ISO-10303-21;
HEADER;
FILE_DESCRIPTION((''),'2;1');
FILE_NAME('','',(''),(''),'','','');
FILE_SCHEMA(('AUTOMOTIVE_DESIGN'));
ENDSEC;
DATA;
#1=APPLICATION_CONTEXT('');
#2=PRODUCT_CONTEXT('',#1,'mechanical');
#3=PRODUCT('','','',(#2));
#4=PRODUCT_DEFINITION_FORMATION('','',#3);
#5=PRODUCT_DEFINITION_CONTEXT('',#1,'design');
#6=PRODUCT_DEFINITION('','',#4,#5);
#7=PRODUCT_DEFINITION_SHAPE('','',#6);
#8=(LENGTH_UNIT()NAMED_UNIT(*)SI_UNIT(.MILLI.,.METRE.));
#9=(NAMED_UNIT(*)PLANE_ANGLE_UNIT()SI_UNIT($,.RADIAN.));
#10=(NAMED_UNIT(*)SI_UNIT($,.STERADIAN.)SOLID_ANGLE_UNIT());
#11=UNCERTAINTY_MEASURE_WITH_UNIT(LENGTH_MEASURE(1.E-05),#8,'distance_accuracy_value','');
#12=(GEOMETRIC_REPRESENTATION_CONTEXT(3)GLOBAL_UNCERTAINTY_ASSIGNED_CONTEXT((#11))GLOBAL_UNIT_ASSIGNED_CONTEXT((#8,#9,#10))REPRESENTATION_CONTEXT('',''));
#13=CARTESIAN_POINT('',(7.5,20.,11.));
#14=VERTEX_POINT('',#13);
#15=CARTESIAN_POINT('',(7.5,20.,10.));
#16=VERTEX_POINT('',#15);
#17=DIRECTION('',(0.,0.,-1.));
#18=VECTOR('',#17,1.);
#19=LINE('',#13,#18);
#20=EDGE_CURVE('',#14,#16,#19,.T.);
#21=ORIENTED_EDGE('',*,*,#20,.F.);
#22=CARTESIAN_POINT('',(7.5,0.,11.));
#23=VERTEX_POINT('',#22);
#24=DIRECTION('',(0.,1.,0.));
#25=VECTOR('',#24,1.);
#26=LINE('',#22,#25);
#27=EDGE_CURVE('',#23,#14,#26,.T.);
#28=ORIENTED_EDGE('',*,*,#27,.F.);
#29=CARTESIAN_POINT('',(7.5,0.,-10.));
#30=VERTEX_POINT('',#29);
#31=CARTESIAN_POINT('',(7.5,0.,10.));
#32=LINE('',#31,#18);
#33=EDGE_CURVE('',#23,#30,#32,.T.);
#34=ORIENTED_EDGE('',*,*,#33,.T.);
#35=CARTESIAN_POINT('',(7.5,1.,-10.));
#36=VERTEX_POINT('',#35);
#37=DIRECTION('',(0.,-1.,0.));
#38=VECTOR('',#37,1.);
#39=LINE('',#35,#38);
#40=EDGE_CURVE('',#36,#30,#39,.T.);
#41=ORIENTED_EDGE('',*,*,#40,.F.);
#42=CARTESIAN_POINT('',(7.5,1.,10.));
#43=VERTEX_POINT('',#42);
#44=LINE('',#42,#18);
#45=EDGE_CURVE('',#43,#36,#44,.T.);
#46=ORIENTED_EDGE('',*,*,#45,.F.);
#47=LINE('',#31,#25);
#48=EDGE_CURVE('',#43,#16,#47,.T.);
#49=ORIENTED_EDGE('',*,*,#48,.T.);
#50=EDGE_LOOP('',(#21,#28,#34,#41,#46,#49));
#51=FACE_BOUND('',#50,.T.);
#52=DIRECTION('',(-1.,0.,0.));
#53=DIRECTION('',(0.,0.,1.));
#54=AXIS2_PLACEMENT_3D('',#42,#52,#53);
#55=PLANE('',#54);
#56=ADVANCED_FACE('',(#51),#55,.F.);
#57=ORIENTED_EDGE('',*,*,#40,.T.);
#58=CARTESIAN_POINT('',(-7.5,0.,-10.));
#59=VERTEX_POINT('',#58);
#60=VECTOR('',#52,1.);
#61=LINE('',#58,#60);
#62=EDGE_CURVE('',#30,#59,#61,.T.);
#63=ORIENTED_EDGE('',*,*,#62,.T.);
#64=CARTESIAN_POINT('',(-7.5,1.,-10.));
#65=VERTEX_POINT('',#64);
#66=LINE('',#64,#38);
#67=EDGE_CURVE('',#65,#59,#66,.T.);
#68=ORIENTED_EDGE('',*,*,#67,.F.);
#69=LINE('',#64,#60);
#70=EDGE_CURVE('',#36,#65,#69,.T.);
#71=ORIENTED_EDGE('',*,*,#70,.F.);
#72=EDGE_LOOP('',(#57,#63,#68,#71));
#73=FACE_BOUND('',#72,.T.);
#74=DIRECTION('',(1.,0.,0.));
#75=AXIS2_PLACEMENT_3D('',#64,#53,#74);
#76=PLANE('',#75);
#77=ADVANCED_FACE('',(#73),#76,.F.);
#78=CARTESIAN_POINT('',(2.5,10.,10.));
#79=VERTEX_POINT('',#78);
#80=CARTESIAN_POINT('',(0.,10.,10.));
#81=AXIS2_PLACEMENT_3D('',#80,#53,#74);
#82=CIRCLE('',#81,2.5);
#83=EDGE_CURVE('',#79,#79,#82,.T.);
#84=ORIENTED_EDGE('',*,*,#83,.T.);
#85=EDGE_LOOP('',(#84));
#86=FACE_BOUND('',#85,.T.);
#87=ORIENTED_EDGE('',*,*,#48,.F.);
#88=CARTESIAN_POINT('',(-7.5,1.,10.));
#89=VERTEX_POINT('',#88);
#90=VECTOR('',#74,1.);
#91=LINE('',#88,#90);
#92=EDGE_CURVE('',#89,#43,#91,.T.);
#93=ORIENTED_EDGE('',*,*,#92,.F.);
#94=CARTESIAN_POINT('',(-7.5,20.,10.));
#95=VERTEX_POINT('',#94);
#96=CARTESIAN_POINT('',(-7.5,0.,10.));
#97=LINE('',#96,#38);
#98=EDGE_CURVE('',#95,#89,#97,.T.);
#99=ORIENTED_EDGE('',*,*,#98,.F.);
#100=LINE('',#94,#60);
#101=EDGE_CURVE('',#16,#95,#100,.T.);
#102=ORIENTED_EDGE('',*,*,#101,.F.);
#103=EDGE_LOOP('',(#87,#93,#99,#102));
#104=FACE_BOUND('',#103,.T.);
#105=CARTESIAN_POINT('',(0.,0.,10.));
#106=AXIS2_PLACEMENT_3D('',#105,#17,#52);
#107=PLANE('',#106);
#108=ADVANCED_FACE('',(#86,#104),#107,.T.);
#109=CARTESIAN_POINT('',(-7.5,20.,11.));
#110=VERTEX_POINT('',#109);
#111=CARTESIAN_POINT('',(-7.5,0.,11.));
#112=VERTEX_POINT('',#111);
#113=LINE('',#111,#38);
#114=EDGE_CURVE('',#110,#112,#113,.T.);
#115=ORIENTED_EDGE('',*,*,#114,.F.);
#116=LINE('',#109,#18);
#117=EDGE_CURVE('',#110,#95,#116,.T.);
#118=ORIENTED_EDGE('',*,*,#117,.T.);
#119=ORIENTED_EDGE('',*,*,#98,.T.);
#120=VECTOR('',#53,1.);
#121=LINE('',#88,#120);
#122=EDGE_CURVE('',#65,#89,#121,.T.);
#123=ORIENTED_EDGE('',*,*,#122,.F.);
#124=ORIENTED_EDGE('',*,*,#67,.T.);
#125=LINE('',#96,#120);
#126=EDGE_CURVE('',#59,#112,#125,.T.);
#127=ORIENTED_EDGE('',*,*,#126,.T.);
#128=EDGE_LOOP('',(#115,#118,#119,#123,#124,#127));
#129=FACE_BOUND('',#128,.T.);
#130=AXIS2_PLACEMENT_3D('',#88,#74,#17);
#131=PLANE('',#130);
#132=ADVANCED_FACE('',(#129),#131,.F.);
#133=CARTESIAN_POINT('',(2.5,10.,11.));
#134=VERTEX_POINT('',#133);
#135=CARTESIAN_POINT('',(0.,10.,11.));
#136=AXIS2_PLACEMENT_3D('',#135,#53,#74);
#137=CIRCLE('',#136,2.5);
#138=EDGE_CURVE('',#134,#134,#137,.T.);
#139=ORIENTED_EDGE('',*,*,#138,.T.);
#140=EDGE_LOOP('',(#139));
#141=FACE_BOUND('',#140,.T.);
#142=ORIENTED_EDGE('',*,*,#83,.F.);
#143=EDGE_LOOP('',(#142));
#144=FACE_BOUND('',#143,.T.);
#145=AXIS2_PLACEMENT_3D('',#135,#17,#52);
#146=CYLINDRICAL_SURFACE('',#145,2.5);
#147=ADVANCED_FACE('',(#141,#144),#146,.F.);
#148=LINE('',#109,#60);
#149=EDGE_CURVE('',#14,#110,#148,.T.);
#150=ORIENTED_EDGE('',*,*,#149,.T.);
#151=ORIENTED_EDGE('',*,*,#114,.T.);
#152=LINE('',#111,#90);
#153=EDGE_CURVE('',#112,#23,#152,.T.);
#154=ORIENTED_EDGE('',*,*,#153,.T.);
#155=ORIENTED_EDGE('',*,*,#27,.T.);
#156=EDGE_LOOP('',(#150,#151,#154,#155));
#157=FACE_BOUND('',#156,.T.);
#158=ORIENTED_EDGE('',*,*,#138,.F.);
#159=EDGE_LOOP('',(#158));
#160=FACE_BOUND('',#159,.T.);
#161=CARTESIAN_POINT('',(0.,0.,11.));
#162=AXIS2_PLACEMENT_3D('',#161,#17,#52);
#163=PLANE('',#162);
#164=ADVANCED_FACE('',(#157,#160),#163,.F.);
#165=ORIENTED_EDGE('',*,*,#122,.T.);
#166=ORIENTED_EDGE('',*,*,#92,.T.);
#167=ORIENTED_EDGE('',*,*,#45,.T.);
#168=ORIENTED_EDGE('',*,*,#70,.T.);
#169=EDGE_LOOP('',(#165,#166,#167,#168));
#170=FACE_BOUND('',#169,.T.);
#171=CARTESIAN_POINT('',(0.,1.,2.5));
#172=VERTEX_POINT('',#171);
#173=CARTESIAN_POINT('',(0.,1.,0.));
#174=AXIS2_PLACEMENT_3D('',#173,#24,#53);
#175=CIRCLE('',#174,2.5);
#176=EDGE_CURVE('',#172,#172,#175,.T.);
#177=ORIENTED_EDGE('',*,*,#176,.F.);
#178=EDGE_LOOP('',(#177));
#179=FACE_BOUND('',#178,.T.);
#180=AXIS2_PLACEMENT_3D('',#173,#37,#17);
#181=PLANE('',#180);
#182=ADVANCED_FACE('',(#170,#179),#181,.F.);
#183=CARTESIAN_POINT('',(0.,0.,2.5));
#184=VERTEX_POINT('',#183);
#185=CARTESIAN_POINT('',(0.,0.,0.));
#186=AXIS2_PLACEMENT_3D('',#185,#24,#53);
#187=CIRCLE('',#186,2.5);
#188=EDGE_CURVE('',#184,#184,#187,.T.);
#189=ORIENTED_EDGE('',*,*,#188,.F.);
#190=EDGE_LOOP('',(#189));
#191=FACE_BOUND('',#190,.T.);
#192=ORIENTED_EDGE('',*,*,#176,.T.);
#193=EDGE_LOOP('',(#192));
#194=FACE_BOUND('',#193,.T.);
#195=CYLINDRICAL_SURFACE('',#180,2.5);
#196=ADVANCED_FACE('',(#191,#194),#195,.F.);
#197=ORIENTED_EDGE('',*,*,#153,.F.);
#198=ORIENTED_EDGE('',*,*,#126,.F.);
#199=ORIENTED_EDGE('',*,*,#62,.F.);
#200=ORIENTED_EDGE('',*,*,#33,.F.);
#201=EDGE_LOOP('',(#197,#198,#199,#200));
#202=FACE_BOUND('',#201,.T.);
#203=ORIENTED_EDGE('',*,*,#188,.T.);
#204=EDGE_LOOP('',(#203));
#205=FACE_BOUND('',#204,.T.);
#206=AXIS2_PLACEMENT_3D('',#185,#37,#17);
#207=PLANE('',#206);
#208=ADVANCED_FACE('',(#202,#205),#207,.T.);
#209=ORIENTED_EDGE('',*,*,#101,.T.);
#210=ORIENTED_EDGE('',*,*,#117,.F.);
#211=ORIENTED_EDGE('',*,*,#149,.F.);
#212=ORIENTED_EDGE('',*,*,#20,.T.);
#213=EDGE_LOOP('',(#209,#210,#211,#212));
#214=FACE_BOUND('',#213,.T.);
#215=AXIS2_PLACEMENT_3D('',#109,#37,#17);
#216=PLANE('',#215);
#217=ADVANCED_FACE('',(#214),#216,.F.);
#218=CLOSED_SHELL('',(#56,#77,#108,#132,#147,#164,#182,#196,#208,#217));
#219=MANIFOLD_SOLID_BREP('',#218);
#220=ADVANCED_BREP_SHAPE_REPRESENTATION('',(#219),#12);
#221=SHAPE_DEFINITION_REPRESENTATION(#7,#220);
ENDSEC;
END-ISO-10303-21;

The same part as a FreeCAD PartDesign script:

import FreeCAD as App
import Part
import Sketcher


def add_polygon(sketch, points):
    """Adds a closed chain of lines whose ends are joined by coincident constraints."""
    first, n = sketch.GeometryCount, len(points)
    for a, b in zip(points, points[1:] + points[:1]):
        sketch.addGeometry(Part.LineSegment(App.Vector(*a, 0), App.Vector(*b, 0)), False)
    for i in range(n):
        sketch.addConstraint(Sketcher.Constraint("Coincident", first + i, 2, first + (i + 1) % n, 1))

doc = App.newDocument("Part")
params = doc.addObject("Spreadsheet::Sheet", "Params")
for row, (alias, value) in enumerate([
    ("sketch1_diameter", "5 mm"),
    ("sketch1_width", "15 mm"),
    ("sketch1_height", "20 mm"),
    ("pad1_length", "1 mm"),
    ("sketch2_diameter", "5 mm"),
    ("sketch2_width", "15 mm"),
    ("sketch2_height", "20 mm"),
    ("pad2_length", "1 mm"),
], start=1):
    params.set(f"A{row}", alias)
    params.set(f"B{row}", "=" + value)
    params.setAlias(f"B{row}", alias)

body = doc.addObject("PartDesign::Body", "Body")

sketch1 = body.newObject("Sketcher::SketchObject", "Sketch")
sketch1.AttachmentSupport = (doc.getObject("XZ_Plane"), [""])
sketch1.MapMode = "FlatFace"
add_polygon(sketch1, [(-7.5, -10), (-7.5, 10), (7.5, 10), (7.5, -10)])
sketch1.addGeometry(Part.Circle(App.Vector(0, 0, 0), App.Vector(0, 0, 1), 2.5), False)
sketch1.addConstraint([
    Sketcher.Constraint("Vertical", 0),
    Sketcher.Constraint("Horizontal", 1),
    Sketcher.Constraint("Vertical", 2),
    Sketcher.Constraint("Horizontal", 3),
    Sketcher.Constraint("Coincident", 4, 3, -1, 1),
    Sketcher.Constraint("Symmetric", 0, 2, 2, 2, -1, 1),
    Sketcher.Constraint("Diameter", 4, 5.0),
    Sketcher.Constraint("DistanceX", 1, 1, 1, 2, 15.0),
    Sketcher.Constraint("DistanceY", 0, 1, 0, 2, 20.0),
])
sketch1.setExpression("Constraints[10]", "Params.sketch1_diameter")
sketch1.setExpression("Constraints[11]", "Params.sketch1_width")
sketch1.setExpression("Constraints[12]", "Params.sketch1_height")
pad1 = body.newObject("PartDesign::Pad", "Pad")
pad1.Profile = sketch1
pad1.setExpression("Length", "Params.pad1_length")
pad1.Reversed = True

sketch2 = body.newObject("Sketcher::SketchObject", "Sketch001")
sketch2.AttachmentSupport = (doc.getObject("XY_Plane"), [""])
sketch2.MapMode = "FlatFace"
sketch2.AttachmentOffset = App.Placement(App.Vector(0, 0, 10), App.Rotation())
add_polygon(sketch2, [(-7.5, 20), (-7.5, 0), (7.5, 0), (7.5, 20)])
sketch2.addGeometry(Part.Circle(App.Vector(0, 10, 0), App.Vector(0, 0, 1), 2.5), False)
sketch2.addConstraint([
    Sketcher.Constraint("Vertical", 0),
    Sketcher.Constraint("Horizontal", 1),
    Sketcher.Constraint("Vertical", 2),
    Sketcher.Constraint("Horizontal", 3),
    Sketcher.Constraint("Symmetric", 0, 2, 1, 2, -1, 1),
    Sketcher.Constraint("PointOnObject", 4, 3, -2),
    Sketcher.Constraint("Diameter", 4, 5.0),
    Sketcher.Constraint("DistanceX", 1, 1, 1, 2, 15.0),
    Sketcher.Constraint("DistanceY", 0, 2, 0, 1, 20.0),
    Sketcher.Constraint("DistanceY", -1, 1, 4, 3, 10.0),
])
sketch2.setExpression("Constraints[10]", "Params.sketch2_diameter")
sketch2.setExpression("Constraints[11]", "Params.sketch2_width")
sketch2.setExpression("Constraints[12]", "Params.sketch2_height")
pad2 = body.newObject("PartDesign::Pad", "Pad001")
pad2.Profile = sketch2
pad2.setExpression("Length", "Params.pad2_length")

doc.recompute()
